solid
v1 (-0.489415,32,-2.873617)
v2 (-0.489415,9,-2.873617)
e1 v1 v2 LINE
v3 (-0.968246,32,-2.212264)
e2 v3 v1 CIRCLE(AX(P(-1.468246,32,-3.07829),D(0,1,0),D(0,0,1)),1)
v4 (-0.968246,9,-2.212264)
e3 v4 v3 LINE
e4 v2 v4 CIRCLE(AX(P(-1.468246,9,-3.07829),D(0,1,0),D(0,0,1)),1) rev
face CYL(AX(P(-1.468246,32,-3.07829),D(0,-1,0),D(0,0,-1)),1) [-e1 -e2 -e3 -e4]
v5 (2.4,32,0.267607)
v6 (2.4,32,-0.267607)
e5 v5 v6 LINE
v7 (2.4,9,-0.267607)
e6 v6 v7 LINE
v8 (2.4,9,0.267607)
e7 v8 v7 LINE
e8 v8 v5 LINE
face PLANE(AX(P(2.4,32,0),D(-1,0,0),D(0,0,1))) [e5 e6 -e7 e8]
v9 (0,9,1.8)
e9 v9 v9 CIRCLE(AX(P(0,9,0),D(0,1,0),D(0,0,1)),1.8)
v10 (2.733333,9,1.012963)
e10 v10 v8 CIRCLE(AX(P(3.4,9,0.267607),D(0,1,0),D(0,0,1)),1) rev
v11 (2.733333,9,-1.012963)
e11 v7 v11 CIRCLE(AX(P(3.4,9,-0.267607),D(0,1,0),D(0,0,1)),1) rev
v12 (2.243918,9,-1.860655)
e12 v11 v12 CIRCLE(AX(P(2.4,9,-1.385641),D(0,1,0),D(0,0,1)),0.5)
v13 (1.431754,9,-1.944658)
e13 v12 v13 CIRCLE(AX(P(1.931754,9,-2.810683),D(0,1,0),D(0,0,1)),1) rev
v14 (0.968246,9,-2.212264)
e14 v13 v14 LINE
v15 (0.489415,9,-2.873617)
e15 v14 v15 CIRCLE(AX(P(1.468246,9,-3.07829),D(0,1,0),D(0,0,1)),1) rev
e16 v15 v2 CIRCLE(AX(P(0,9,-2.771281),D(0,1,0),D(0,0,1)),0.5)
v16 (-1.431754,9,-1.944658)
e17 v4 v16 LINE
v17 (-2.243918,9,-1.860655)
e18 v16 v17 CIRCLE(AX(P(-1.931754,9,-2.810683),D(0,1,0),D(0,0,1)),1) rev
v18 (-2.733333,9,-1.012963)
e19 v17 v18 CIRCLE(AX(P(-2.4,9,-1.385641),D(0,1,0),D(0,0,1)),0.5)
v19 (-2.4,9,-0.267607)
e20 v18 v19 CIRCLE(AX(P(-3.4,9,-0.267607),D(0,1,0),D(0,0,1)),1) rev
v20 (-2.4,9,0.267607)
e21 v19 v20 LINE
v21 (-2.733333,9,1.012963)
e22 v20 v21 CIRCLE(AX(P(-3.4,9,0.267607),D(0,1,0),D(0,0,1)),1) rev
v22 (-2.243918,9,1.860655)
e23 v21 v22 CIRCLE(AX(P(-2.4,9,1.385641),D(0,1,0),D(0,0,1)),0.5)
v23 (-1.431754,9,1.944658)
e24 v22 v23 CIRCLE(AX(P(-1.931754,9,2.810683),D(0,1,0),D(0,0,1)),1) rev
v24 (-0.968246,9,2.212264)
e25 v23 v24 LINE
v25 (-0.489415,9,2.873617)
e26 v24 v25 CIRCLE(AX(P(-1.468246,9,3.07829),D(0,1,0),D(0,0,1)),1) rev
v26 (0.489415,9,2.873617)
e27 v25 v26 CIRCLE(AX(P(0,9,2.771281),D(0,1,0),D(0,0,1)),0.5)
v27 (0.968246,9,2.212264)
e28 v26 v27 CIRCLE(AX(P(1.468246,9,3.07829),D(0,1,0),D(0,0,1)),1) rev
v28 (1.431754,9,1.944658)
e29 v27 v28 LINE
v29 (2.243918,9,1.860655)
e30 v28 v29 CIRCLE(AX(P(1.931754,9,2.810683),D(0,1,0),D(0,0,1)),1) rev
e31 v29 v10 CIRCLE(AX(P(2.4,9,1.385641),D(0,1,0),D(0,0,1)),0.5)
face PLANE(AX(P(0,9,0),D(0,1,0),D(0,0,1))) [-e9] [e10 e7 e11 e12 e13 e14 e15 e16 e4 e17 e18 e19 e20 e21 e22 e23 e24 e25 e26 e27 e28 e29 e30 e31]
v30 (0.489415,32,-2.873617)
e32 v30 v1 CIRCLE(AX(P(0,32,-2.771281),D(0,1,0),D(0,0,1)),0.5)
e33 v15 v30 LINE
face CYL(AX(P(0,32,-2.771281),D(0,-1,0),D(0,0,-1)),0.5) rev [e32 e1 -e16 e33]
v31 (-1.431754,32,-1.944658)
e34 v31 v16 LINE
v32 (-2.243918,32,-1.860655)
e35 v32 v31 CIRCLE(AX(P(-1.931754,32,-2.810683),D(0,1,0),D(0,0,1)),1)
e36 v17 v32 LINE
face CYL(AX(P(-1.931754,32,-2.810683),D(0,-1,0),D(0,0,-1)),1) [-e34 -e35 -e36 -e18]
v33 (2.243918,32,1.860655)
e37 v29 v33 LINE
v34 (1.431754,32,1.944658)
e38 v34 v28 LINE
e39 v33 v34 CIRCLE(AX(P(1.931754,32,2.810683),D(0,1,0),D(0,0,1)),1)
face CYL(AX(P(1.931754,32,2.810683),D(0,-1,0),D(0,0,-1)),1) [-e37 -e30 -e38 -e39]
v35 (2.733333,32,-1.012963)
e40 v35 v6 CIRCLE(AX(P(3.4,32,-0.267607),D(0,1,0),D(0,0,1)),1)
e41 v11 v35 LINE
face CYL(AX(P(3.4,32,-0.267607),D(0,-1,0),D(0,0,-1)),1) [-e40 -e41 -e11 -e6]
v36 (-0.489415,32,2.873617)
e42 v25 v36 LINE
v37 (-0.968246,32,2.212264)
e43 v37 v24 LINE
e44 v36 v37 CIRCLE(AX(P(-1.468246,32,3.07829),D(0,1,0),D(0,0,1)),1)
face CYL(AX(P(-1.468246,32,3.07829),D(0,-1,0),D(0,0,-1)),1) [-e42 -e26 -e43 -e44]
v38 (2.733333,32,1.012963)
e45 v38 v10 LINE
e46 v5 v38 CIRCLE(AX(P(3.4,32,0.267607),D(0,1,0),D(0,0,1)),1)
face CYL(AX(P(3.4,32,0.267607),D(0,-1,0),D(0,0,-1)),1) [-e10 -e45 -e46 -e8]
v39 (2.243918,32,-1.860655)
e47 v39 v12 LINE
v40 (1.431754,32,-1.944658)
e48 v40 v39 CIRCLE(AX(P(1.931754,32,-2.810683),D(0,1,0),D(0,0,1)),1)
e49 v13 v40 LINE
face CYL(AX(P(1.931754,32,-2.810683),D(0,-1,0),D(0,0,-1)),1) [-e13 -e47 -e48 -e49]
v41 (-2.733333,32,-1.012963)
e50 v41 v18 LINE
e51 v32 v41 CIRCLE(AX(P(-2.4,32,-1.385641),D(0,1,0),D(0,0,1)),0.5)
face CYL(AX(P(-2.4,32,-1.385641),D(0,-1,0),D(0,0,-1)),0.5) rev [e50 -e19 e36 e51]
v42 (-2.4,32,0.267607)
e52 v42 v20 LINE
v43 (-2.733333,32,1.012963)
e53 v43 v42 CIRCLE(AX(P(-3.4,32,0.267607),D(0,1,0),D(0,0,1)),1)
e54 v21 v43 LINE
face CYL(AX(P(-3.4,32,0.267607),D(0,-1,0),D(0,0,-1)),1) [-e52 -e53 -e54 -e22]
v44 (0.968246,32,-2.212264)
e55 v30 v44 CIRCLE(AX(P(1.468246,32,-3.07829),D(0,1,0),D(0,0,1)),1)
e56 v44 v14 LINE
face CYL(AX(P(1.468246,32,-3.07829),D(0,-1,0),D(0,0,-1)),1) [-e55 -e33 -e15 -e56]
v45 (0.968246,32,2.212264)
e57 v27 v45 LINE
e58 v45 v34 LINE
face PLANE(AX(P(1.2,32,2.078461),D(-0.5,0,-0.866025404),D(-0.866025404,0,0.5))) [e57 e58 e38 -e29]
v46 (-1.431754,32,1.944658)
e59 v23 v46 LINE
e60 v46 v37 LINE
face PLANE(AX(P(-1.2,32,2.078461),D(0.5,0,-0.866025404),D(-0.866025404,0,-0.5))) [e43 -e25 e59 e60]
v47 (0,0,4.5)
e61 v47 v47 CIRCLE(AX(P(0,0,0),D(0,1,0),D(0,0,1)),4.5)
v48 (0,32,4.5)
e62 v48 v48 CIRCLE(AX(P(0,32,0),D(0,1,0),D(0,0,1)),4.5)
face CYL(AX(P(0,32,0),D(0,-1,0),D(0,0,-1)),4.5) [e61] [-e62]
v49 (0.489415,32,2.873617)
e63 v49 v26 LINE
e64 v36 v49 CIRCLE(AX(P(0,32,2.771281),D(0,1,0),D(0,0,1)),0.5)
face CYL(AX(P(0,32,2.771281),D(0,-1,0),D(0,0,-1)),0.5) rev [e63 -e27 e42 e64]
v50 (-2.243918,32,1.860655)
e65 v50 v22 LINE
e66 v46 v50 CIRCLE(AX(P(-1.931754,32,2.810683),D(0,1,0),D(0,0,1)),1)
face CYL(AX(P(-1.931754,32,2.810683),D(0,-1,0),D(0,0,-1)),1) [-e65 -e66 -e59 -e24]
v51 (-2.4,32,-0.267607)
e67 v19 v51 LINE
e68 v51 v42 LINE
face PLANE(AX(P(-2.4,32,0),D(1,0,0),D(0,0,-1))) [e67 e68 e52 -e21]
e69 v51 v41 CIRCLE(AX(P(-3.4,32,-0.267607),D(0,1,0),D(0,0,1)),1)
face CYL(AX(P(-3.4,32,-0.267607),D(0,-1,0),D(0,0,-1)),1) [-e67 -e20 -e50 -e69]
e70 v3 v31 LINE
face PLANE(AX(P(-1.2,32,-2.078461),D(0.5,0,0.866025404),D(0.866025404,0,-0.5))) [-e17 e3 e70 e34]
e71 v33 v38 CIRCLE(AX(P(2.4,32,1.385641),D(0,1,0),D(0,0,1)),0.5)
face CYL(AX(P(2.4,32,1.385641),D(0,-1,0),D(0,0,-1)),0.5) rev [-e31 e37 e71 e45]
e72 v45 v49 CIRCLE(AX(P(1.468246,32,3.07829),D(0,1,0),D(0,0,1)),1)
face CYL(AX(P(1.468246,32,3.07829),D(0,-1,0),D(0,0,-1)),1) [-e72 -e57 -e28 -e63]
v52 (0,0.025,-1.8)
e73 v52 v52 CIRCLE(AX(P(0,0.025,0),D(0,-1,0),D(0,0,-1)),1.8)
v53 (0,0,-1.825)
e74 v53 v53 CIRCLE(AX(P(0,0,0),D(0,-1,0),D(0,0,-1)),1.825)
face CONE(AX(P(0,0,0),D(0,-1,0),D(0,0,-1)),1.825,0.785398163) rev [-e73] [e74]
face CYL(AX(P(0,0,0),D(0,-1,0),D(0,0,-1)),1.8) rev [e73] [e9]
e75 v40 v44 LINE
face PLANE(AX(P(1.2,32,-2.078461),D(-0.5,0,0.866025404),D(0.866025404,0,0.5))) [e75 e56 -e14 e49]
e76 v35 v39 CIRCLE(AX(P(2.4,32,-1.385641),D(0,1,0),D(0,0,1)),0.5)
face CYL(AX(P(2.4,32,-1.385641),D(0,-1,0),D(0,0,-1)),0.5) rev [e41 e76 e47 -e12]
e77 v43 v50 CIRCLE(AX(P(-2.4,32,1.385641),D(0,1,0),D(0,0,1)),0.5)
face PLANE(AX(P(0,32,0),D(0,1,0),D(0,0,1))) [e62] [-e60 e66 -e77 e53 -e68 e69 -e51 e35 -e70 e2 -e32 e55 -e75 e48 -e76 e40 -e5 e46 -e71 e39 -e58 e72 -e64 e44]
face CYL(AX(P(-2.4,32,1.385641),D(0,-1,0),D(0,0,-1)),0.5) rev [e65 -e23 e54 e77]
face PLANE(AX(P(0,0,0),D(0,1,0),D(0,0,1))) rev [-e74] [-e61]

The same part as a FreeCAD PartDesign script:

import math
import FreeCAD as App
import Part
import Sketcher

V = App.Vector
Q = App.Units.Quantity


def edges_at(feature, points):
    """Names of the edges that pass closest to the given points."""
    edges = feature.Shape.Edges
    near = lambda p: min(range(len(edges)), key=lambda i: edges[i].distToShape(Part.Vertex(*p))[0])
    return sorted({f"Edge{near(p) + 1}" for p in points})

doc = App.newDocument("Part")
body = doc.addObject("PartDesign::Body", "Body")

sketch1 = body.newObject("Sketcher::SketchObject", "Sketch")
sketch1.AttachmentSupport = (doc.getObject("XZ_Plane"), [""])
sketch1.MapMode = "FlatFace"
sketch1.addGeometry([
    Part.Circle(V(0, 0, 0), V(0, 0, 1), 4.5),
    Part.ArcOfCircle(Part.Circle(V(-2.4, 1.385641, 0), V(0, 0, 1), 0.5), math.radians(30), math.radians(270)),
    Part.LineSegment(V(-2.4, 0.885641, 0), V(-2.4, -0.885641, 0)),
    Part.ArcOfCircle(Part.Circle(V(-2.4, -1.385641, 0), V(0, 0, 1), 0.5), math.radians(90), math.radians(330)),
    Part.LineSegment(V(-1.966987, -1.635641, 0), V(-0.433013, -2.521281, 0)),
    Part.ArcOfCircle(Part.Circle(V(0, -2.771281, 0), V(0, 0, 1), 0.5), math.radians(150), math.radians(360)),
    Part.ArcOfCircle(Part.Circle(V(0, -2.771281, 0), V(0, 0, 1), 0.5), math.radians(0), math.radians(30)),
    Part.LineSegment(V(0.433013, -2.521281, 0), V(1.966987, -1.635641, 0)),
    Part.ArcOfCircle(Part.Circle(V(2.4, -1.385641, 0), V(0, 0, 1), 0.5), math.radians(-150), math.radians(0)),
    Part.ArcOfCircle(Part.Circle(V(2.4, -1.385641, 0), V(0, 0, 1), 0.5), math.radians(0), math.radians(90)),
    Part.LineSegment(V(2.4, -0.885641, 0), V(2.4, 0.885641, 0)),
    Part.ArcOfCircle(Part.Circle(V(2.4, 1.385641, 0), V(0, 0, 1), 0.5), math.radians(-90), math.radians(0)),
    Part.ArcOfCircle(Part.Circle(V(2.4, 1.385641, 0), V(0, 0, 1), 0.5), math.radians(0), math.radians(150)),
    Part.LineSegment(V(1.966987, 1.635641, 0), V(0.433013, 2.521281, 0)),
    Part.ArcOfCircle(Part.Circle(V(0, 2.771281, 0), V(0, 0, 1), 0.5), math.radians(-30), math.radians(0)),
    Part.ArcOfCircle(Part.Circle(V(0, 2.771281, 0), V(0, 0, 1), 0.5), math.radians(0), math.radians(210)),
    Part.LineSegment(V(-0.433013, 2.521281, 0), V(-1.966987, 1.635641, 0)),
], False)
sketch1.addConstraint([
    Sketcher.Constraint("Coincident", 1, 2, 2, 1),
    Sketcher.Constraint("Coincident", 2, 2, 3, 1),
    Sketcher.Constraint("Coincident", 3, 2, 4, 1),
    Sketcher.Constraint("Coincident", 4, 2, 5, 1),
    Sketcher.Constraint("Tangent", 5, 2, 6, 1),
    Sketcher.Constraint("Coincident", 6, 2, 7, 1),
    Sketcher.Constraint("Coincident", 7, 2, 8, 1),
    Sketcher.Constraint("Tangent", 8, 2, 9, 1),
    Sketcher.Constraint("Coincident", 9, 2, 10, 1),
    Sketcher.Constraint("Coincident", 10, 2, 11, 1),
    Sketcher.Constraint("Tangent", 11, 2, 12, 1),
    Sketcher.Constraint("Coincident", 12, 2, 13, 1),
    Sketcher.Constraint("Coincident", 13, 2, 14, 1),
    Sketcher.Constraint("Tangent", 14, 2, 15, 1),
    Sketcher.Constraint("Coincident", 15, 2, 16, 1),
    Sketcher.Constraint("Coincident", 16, 2, 1, 1),
    Sketcher.Constraint("Vertical", 2),
    Sketcher.Constraint("Vertical", 10),
    Sketcher.Constraint("Coincident", 0, 3, -1, 1),
    Sketcher.Constraint("Equal", 1, 3),
    Sketcher.Constraint("Equal", 3, 5),
    Sketcher.Constraint("Equal", 5, 6),
    Sketcher.Constraint("Equal", 6, 8),
    Sketcher.Constraint("Equal", 8, 9),
    Sketcher.Constraint("Equal", 9, 11),
    Sketcher.Constraint("Equal", 11, 12),
    Sketcher.Constraint("Equal", 12, 14),
    Sketcher.Constraint("Equal", 14, 15),
    Sketcher.Constraint("Symmetric", 1, 3, 8, 3, -1, 1),
    Sketcher.Constraint("Symmetric", 3, 3, 11, 3, -1, 1),
    Sketcher.Constraint("Symmetric", 5, 3, 14, 3, -1, 1),
    Sketcher.Constraint("Symmetric", 3, 3, 8, 3, -2),
    Sketcher.Constraint("Symmetric", 4, 2, 6, 2, -2),
    Sketcher.Constraint("Parallel", 4, 13),
    Sketcher.Constraint("Parallel", 7, 16),
    Sketcher.Constraint("Horizontal", 6, 3, 5, 2),
    Sketcher.Constraint("Horizontal", 3, 2, 7, 2),
    Sketcher.Constraint("Horizontal", 9, 3, 8, 2),
    Sketcher.Constraint("Horizontal", 12, 3, 11, 2),
    Sketcher.Constraint("Horizontal", 15, 3, 14, 2),
    Sketcher.Constraint("Horizontal", 13, 2, 15, 2),
    Sketcher.Constraint("Vertical", 3, 3, 1, 2),
    Sketcher.Constraint("Vertical", 12, 3, 9, 2),
    Sketcher.Constraint("Vertical", 7, 2, 12, 2),
    Sketcher.Constraint("Diameter", 0, 9.0),
    Sketcher.Constraint("Radius", 1, 0.5),
    Sketcher.Constraint("Angle", 4, Q("-30 deg")),
    Sketcher.Constraint("DistanceX", 1, 3, -1, 1, 2.4),
    Sketcher.Constraint("DistanceY", 3, 2, 3, 3, 0.25),
    Sketcher.Constraint("DistanceY", 6, 3, 4, 2, 0.25),
    Sketcher.Constraint("DistanceY", 2, 2, 2, 1, 1.771281),
])
pad1 = body.newObject("PartDesign::Pad", "Pad")
pad1.Profile = sketch1
pad1.Length = 32
pad1.Reversed = True

sketch2 = body.newObject("Sketcher::SketchObject", "Sketch001")
sketch2.AttachmentSupport = (doc.getObject("XZ_Plane"), [""])
sketch2.MapMode = "FlatFace"
sketch2.addGeometry(Part.Circle(V(0, 0, 0), V(0, 0, 1), 4.5), False)
sketch2.addConstraint([
    Sketcher.Constraint("Coincident", 0, 3, -1, 1),
    Sketcher.Constraint("Diameter", 0, 9.0),
])
pad2 = body.newObject("PartDesign::Pad", "Pad001")
pad2.Profile = sketch2
pad2.Length = 9
pad2.Reversed = True

sketch3 = body.newObject("Sketcher::SketchObject", "Sketch002")
sketch3.AttachmentSupport = (doc.getObject("XZ_Plane"), [""])
sketch3.MapMode = "FlatFace"
sketch3.addGeometry(Part.Circle(V(0, 0, 0), V(0, 0, 1), 1.8), False)
sketch3.addConstraint([
    Sketcher.Constraint("Coincident", 0, 3, -1, 1),
    Sketcher.Constraint("Diameter", 0, 3.6),
])
doc.recompute()
hole = body.newObject("PartDesign::Hole", "Hole")
hole.Profile = sketch3
hole.ThreadType = "None"
hole.Diameter = 3.6
hole.DepthType = "ThroughAll"
hole.HoleCutType = "Countersink"
hole.HoleCutDiameter = 3.65
hole.HoleCutCountersinkAngle = 90
doc.recompute()

fillet = body.newObject("PartDesign::Fillet", "Fillet")
fillet.Base = (hole, edges_at(hole, [
    (-2.4, 20.5, -0.886),
    (-2.4, 20.5, 0.886),
    (-1.967, 20.5, 1.636),
    (-0.433, 20.5, 2.521),
    (0.433, 20.5, 2.521),
    (1.967, 20.5, 1.636),
    (2.4, 20.5, 0.886),
    (2.4, 20.5, -0.886),
    (1.967, 20.5, -1.636),
    (0.433, 20.5, -2.521),
    (-0.433, 20.5, -2.521),
    (-1.967, 20.5, -1.636),
]))
fillet.Radius = 1

doc.recompute()
